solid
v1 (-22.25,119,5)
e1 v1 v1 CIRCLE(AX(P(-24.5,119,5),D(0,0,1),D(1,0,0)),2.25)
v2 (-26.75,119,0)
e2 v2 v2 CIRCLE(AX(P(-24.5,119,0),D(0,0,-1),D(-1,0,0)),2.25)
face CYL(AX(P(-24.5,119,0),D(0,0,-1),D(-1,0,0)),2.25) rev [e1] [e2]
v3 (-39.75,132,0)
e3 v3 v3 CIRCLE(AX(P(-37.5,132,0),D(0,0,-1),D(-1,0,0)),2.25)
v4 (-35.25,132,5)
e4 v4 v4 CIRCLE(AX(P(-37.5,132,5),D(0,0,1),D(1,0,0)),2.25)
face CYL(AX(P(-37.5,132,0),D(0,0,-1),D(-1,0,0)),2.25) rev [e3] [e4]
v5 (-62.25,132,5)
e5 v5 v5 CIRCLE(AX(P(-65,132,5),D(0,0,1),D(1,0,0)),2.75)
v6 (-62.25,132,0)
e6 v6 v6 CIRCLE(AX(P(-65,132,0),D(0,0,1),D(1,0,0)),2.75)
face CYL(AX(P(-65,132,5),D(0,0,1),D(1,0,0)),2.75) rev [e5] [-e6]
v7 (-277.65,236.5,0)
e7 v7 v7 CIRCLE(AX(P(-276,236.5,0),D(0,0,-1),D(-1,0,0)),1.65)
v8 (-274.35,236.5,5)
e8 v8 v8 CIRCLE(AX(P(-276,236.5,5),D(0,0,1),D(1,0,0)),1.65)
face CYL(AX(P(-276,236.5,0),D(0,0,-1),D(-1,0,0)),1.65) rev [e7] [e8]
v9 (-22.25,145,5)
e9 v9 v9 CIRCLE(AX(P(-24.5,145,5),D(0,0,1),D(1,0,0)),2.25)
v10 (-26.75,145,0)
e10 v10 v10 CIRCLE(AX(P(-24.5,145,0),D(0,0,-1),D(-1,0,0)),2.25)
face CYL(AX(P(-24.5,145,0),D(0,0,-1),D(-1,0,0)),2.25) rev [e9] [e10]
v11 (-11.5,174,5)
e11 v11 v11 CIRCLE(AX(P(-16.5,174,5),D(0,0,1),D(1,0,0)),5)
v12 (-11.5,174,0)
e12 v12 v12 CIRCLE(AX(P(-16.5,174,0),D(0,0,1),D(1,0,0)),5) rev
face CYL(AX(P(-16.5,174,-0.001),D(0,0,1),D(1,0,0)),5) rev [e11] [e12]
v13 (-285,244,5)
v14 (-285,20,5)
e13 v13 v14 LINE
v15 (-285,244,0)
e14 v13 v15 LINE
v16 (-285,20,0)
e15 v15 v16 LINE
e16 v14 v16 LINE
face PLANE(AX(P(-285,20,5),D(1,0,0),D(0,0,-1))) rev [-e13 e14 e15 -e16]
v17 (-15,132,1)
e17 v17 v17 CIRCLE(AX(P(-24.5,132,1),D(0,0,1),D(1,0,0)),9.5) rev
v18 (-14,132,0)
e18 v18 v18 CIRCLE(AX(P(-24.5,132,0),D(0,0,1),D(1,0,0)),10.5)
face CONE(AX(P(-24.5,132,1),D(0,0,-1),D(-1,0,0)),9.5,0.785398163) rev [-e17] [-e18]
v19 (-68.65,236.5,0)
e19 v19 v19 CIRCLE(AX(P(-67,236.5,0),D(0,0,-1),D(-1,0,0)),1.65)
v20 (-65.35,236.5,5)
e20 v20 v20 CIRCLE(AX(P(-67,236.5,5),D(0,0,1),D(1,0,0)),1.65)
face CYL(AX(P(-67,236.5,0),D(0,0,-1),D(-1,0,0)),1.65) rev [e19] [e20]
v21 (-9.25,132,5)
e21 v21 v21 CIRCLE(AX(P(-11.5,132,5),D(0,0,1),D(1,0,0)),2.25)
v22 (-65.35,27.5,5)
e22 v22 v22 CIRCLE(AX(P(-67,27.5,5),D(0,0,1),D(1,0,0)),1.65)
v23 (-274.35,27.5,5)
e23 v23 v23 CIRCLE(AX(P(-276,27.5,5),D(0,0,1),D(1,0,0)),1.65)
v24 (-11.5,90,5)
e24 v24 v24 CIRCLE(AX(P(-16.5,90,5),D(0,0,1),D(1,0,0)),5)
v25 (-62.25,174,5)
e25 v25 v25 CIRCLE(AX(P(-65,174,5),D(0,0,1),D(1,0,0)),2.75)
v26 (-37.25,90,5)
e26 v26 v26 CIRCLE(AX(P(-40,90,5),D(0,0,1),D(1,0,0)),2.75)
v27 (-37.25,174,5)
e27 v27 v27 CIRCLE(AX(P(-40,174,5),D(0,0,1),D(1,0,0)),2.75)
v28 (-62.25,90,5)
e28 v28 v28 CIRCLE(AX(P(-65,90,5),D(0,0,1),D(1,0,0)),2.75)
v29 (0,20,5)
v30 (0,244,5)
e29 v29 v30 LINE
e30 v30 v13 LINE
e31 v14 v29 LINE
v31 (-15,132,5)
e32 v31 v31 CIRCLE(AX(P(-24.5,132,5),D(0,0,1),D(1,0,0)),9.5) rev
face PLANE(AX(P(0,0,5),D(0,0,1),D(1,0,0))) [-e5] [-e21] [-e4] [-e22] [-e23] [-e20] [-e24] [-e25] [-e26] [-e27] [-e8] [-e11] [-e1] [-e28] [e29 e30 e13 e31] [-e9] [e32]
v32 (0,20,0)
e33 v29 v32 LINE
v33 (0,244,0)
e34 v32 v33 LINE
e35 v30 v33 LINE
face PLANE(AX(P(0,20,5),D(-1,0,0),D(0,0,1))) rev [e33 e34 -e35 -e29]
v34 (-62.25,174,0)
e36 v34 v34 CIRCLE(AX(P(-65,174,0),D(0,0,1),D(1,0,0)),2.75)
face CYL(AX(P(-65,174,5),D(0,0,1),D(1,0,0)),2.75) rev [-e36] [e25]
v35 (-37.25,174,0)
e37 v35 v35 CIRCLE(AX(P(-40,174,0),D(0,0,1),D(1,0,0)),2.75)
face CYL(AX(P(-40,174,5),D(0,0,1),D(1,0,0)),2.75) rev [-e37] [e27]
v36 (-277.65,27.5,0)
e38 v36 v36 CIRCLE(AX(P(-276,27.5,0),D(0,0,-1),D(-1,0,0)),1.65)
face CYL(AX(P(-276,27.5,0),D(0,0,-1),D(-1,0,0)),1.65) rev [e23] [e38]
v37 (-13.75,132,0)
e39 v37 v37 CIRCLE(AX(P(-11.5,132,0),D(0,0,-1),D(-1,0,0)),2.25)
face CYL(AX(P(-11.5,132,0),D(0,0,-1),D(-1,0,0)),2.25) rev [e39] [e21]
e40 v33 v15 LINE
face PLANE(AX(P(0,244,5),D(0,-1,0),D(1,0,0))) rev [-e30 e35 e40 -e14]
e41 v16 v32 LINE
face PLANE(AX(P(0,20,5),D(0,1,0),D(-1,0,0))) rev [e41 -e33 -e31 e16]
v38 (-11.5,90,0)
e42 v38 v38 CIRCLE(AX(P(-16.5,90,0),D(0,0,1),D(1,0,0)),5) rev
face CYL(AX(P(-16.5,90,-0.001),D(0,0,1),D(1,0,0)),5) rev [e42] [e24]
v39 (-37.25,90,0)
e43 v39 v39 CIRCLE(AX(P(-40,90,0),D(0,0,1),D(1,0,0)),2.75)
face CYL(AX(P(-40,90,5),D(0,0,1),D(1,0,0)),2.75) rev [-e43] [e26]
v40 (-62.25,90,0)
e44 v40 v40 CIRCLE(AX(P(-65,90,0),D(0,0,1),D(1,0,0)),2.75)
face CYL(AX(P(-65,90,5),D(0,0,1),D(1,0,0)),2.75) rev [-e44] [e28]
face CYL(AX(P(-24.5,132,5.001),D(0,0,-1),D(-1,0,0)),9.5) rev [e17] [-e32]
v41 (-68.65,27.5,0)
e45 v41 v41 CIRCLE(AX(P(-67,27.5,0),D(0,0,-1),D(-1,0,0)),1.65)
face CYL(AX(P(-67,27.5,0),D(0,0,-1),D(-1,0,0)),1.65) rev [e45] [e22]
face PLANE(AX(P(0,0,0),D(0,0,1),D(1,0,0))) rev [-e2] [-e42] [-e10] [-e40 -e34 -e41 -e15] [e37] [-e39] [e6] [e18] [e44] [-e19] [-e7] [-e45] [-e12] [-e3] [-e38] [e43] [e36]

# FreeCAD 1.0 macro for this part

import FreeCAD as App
import Part
import Sketcher

V = App.Vector
Q = App.Units.Quantity


def edges_at(feature, points):
    """Names of the edges that pass closest to the given points."""
    edges = feature.Shape.Edges
    near = lambda p: min(range(len(edges)), key=lambda i: edges[i].distToShape(Part.Vertex(*p))[0])
    return sorted({f"Edge{near(p) + 1}" for p in points})


def add_polygon(sketch, points):
    """Adds a closed chain of lines whose ends are joined by coincident constraints."""
    first, n = sketch.GeometryCount, len(points)
    for a, b in zip(points, points[1:] + points[:1]):
        sketch.addGeometry(Part.LineSegment(App.Vector(*a, 0), App.Vector(*b, 0)), False)
    for i in range(n):
        sketch.addConstraint(Sketcher.Constraint("Coincident", first + i, 2, first + (i + 1) % n, 1))

doc = App.newDocument("Part")
params = doc.addObject("Spreadsheet::Sheet", "Params")
for row, (alias, value) in enumerate([
    ("sketch1_width", "285 mm"),
    ("sketch1_height", "224 mm"),
    ("pad1_length", "5 mm"),
    ("sketch2_diameter", "19 mm"),
    ("chamfer_size", "1 mm"),
    ("sketch3_diameter", "4.5 mm"),
    ("hole_diameter", "4.5 mm"),
    ("hole_depth", "8 mm"),
    ("sketch4_diameter", "10 mm"),
    ("sketch5_diameter", "10 mm"),
    ("sketch6_diameter", "5.5 mm"),
    ("hole2_diameter", "5.5 mm"),
    ("hole2_depth", "5 mm"),
    ("sketch7_diameter", "3.3 mm"),
    ("hole3_diameter", "3.3 mm"),
], start=1):
    params.set(f"A{row}", alias)
    params.set(f"B{row}", "=" + value)
    params.setAlias(f"B{row}", alias)

body = doc.addObject("PartDesign::Body", "Body")

sketch1 = doc.addObject("Sketcher::SketchObject", "Sketch")
body.addObject(sketch1)
sketch1.AttachmentSupport = (doc.XY_Plane, [""])
sketch1.MapMode = "FlatFace"
add_polygon(sketch1, [(-285, 244), (-285, 20), (0, 20), (0, 244)])
sketch1.addConstraint([
    Sketcher.Constraint("Vertical", 0),
    Sketcher.Constraint("Horizontal", 1),
    Sketcher.Constraint("Vertical", 2),
    Sketcher.Constraint("Horizontal", 3),
    Sketcher.Constraint("PointOnObject", 1, 2, -2),
    Sketcher.Constraint("DistanceX", 1, 1, 1, 2, Q("285 mm")),
    Sketcher.Constraint("DistanceY", 0, 2, 0, 1, Q("224 mm")),
    Sketcher.Constraint("DistanceY", -1, 1, 0, 2, Q("20 mm")),
])
sketch1.setExpression("Constraints[9]", "Params.sketch1_width")
sketch1.setExpression("Constraints[10]", "Params.sketch1_height")
pad1 = doc.addObject("PartDesign::Pad", "Pad")
body.addObject(pad1)
pad1.Profile = sketch1
pad1.setExpression("Length", "Params.pad1_length")

sketch2 = doc.addObject("Sketcher::SketchObject", "Sketch001")
body.addObject(sketch2)
sketch2.AttachmentSupport = (doc.XY_Plane, [""])
sketch2.MapMode = "FlatFace"
sketch2.addGeometry(Part.Circle(V(-24.5, 132, 0), V(0, 0, 1), 9.5), False)
sketch2.addConstraint([
    Sketcher.Constraint("Diameter", 0, Q("19 mm")),
    Sketcher.Constraint("DistanceY", -1, 1, 0, 3, Q("132 mm")),
    Sketcher.Constraint("DistanceX", 0, 3, -1, 1, Q("24.5 mm")),
])
sketch2.setExpression("Constraints[0]", "Params.sketch2_diameter")
pocket1 = doc.addObject("PartDesign::Pocket", "Pocket")
body.addObject(pocket1)
pocket1.Profile = sketch2
pocket1.Type = "UpToFirst"
pocket1.Reversed = True
doc.recompute()

chamfer = doc.addObject("PartDesign::Chamfer", "Chamfer")
body.addObject(chamfer)
chamfer.Base = (pocket1, edges_at(pocket1, [(-15, 132, 0)]))
chamfer.setExpression("Size", "Params.chamfer_size")

sketch3 = doc.addObject("Sketcher::SketchObject", "Sketch002")
body.addObject(sketch3)
sketch3.AttachmentSupport = (doc.XY_Plane, [""])
sketch3.MapMode = "FlatFace"
sketch3.addGeometry([
    Part.Circle(V(-24.5, 119, 0), V(0, 0, 1), 2.25),
    Part.Circle(V(-37.5, 132, 0), V(0, 0, 1), 2.25),
    Part.Circle(V(-24.5, 145, 0), V(0, 0, 1), 2.25),
    Part.Circle(V(-11.5, 132, 0), V(0, 0, 1), 2.25),
], False)
sketch3.addConstraint([
    Sketcher.Constraint("Equal", 0, 1),
    Sketcher.Constraint("Equal", 1, 2),
    Sketcher.Constraint("Equal", 2, 3),
    Sketcher.Constraint("Horizontal", 1, 3, 3, 3),
    Sketcher.Constraint("Vertical", 0, 3, 2, 3),
    Sketcher.Constraint("Diameter", 0, Q("4.5 mm")),
    Sketcher.Constraint("DistanceY", -1, 1, 0, 3, Q("119 mm")),
    Sketcher.Constraint("DistanceY", -1, 1, 1, 3, Q("132 mm")),
    Sketcher.Constraint("DistanceY", -1, 1, 2, 3, Q("145 mm")),
    Sketcher.Constraint("DistanceX", 1, 3, 0, 3, Q("13 mm")),
    Sketcher.Constraint("DistanceX", 0, 3, 3, 3, Q("13 mm")),
    Sketcher.Constraint("DistanceX", 0, 3, -1, 1, Q("24.5 mm")),
])
sketch3.setExpression("Constraints[5]", "Params.sketch3_diameter")
doc.recompute()
hole = doc.addObject("PartDesign::Hole", "Hole")
body.addObject(hole)
hole.Profile = sketch3
hole.ThreadType = "None"
hole.setExpression("Diameter", "Params.hole_diameter")
hole.DepthType = "Dimension"
hole.setExpression("Depth", "Params.hole_depth")
hole.DrillPoint = "Angled"
hole.DrillPointAngle = 118
hole.Reversed = True

sketch4 = doc.addObject("Sketcher::SketchObject", "Sketch003")
body.addObject(sketch4)
sketch4.AttachmentSupport = (doc.XY_Plane, [""])
sketch4.MapMode = "FlatFace"
sketch4.AttachmentOffset = App.Placement(V(0, 0, 5), App.Rotation())
sketch4.addGeometry(Part.Circle(V(-16.5, 90, 0), V(0, 0, 1), 5), False)
sketch4.addConstraint([
    Sketcher.Constraint("Diameter", 0, Q("10 mm")),
    Sketcher.Constraint("DistanceY", -1, 1, 0, 3, Q("90 mm")),
    Sketcher.Constraint("DistanceX", 0, 3, -1, 1, Q("16.5 mm")),
])
sketch4.setExpression("Constraints[0]", "Params.sketch4_diameter")
pocket2 = doc.addObject("PartDesign::Pocket", "Pocket001")
body.addObject(pocket2)
pocket2.Profile = sketch4
pocket2.Type = "UpToFirst"

sketch5 = doc.addObject("Sketcher::SketchObject", "Sketch004")
body.addObject(sketch5)
sketch5.AttachmentSupport = (doc.XY_Plane, [""])
sketch5.MapMode = "FlatFace"
sketch5.AttachmentOffset = App.Placement(V(0, 0, 5), App.Rotation())
sketch5.addGeometry(Part.Circle(V(-16.5, 174, 0), V(0, 0, 1), 5), False)
sketch5.addConstraint([
    Sketcher.Constraint("Diameter", 0, Q("10 mm")),
    Sketcher.Constraint("DistanceY", -1, 1, 0, 3, Q("174 mm")),
    Sketcher.Constraint("DistanceX", 0, 3, -1, 1, Q("16.5 mm")),
])
sketch5.setExpression("Constraints[0]", "Params.sketch5_diameter")
pocket3 = doc.addObject("PartDesign::Pocket", "Pocket002")
body.addObject(pocket3)
pocket3.Profile = sketch5
pocket3.Type = "UpToFirst"

sketch6 = doc.addObject("Sketcher::SketchObject", "Sketch005")
body.addObject(sketch6)
sketch6.AttachmentSupport = (doc.XY_Plane, [""])
sketch6.MapMode = "FlatFace"
sketch6.AttachmentOffset = App.Placement(V(0, 0, 5), App.Rotation())
sketch6.addGeometry([
    Part.Circle(V(-27.952977, 298.668852, 0), V(0, 0, 1), 2.75),
    Part.Circle(V(-40, 90, 0), V(0, 0, 1), 2.75),
    Part.Circle(V(-65, 132, 0), V(0, 0, 1), 2.75),
    Part.Circle(V(-40, 174, 0), V(0, 0, 1), 2.75),
    Part.Circle(V(-65, 174, 0), V(0, 0, 1), 2.75),
    Part.Circle(V(-65, 90, 0), V(0, 0, 1), 2.75),
], False)
sketch6.addConstraint([
    Sketcher.Constraint("Equal", 0, 1),
    Sketcher.Constraint("Equal", 1, 2),
    Sketcher.Constraint("Equal", 2, 3),
    Sketcher.Constraint("Equal", 3, 4),
    Sketcher.Constraint("Equal", 4, 5),
    Sketcher.Constraint("Horizontal", 3, 3, 4, 3),
    Sketcher.Constraint("Horizontal", 1, 3, 5, 3),
    Sketcher.Constraint("Vertical", 1, 3, 3, 3),
    Sketcher.Constraint("Vertical", 2, 3, 4, 3),
    Sketcher.Constraint("Vertical", 4, 3, 5, 3),
    Sketcher.Constraint("Diameter", 0, Q("5.5 mm")),
    Sketcher.Constraint("DistanceX", 1, 3, -1, 1, Q("40 mm")),
    Sketcher.Constraint("DistanceY", -1, 1, 1, 3, Q("90 mm")),
    Sketcher.Constraint("DistanceX", 2, 3, -1, 1, Q("65 mm")),
    Sketcher.Constraint("DistanceY", -1, 1, 2, 3, Q("132 mm")),
    Sketcher.Constraint("DistanceY", -1, 1, 3, 3, Q("174 mm")),
    Sketcher.Constraint("DistanceY", -1, 1, 0, 3, Q("298.668852 mm")),
    Sketcher.Constraint("DistanceX", 0, 3, -1, 1, Q("27.952977 mm")),
])
sketch6.setExpression("Constraints[10]", "Params.sketch6_diameter")
doc.recompute()
hole2 = doc.addObject("PartDesign::Hole", "Hole001")
body.addObject(hole2)
hole2.Profile = sketch6
hole2.ThreadType = "None"
hole2.setExpression("Diameter", "Params.hole2_diameter")
hole2.DepthType = "Dimension"
hole2.setExpression("Depth", "Params.hole2_depth")
hole2.DrillPoint = "Flat"

sketch7 = doc.addObject("Sketcher::SketchObject", "Sketch006")
body.addObject(sketch7)
sketch7.AttachmentSupport = (doc.XY_Plane, [""])
sketch7.MapMode = "FlatFace"
sketch7.addGeometry([
    Part.Circle(V(-276, 27.5, 0), V(0, 0, 1), 1.65),
    Part.Circle(V(-67, 27.5, 0), V(0, 0, 1), 1.65),
    Part.Circle(V(-276, 236.5, 0), V(0, 0, 1), 1.65),
    Part.Circle(V(-67, 236.5, 0), V(0, 0, 1), 1.65),
], False)
sketch7.addConstraint([
    Sketcher.Constraint("Equal", 0, 1),
    Sketcher.Constraint("Equal", 1, 2),
    Sketcher.Constraint("Equal", 2, 3),
    Sketcher.Constraint("Horizontal", 0, 3, 1, 3),
    Sketcher.Constraint("Horizontal", 2, 3, 3, 3),
    Sketcher.Constraint("Vertical", 0, 3, 2, 3),
    Sketcher.Constraint("Vertical", 1, 3, 3, 3),
    Sketcher.Constraint("Diameter", 0, Q("3.3 mm")),
    Sketcher.Constraint("DistanceX", 0, 3, -1, 1, Q("276 mm")),
    Sketcher.Constraint("DistanceX", 1, 3, -1, 1, Q("67 mm")),
    Sketcher.Constraint("DistanceY", 0, 3, 2, 3, Q("209 mm")),
    Sketcher.Constraint("DistanceY", -1, 1, 0, 3, Q("27.5 mm")),
])
sketch7.setExpression("Constraints[7]", "Params.sketch7_diameter")
doc.recompute()
hole3 = doc.addObject("PartDesign::Hole", "Hole002")
body.addObject(hole3)
hole3.Profile = sketch7
hole3.ThreadType = "None"
hole3.setExpression("Diameter", "Params.hole3_diameter")
hole3.DepthType = "ThroughAll"
hole3.Reversed = True

doc.recompute()
